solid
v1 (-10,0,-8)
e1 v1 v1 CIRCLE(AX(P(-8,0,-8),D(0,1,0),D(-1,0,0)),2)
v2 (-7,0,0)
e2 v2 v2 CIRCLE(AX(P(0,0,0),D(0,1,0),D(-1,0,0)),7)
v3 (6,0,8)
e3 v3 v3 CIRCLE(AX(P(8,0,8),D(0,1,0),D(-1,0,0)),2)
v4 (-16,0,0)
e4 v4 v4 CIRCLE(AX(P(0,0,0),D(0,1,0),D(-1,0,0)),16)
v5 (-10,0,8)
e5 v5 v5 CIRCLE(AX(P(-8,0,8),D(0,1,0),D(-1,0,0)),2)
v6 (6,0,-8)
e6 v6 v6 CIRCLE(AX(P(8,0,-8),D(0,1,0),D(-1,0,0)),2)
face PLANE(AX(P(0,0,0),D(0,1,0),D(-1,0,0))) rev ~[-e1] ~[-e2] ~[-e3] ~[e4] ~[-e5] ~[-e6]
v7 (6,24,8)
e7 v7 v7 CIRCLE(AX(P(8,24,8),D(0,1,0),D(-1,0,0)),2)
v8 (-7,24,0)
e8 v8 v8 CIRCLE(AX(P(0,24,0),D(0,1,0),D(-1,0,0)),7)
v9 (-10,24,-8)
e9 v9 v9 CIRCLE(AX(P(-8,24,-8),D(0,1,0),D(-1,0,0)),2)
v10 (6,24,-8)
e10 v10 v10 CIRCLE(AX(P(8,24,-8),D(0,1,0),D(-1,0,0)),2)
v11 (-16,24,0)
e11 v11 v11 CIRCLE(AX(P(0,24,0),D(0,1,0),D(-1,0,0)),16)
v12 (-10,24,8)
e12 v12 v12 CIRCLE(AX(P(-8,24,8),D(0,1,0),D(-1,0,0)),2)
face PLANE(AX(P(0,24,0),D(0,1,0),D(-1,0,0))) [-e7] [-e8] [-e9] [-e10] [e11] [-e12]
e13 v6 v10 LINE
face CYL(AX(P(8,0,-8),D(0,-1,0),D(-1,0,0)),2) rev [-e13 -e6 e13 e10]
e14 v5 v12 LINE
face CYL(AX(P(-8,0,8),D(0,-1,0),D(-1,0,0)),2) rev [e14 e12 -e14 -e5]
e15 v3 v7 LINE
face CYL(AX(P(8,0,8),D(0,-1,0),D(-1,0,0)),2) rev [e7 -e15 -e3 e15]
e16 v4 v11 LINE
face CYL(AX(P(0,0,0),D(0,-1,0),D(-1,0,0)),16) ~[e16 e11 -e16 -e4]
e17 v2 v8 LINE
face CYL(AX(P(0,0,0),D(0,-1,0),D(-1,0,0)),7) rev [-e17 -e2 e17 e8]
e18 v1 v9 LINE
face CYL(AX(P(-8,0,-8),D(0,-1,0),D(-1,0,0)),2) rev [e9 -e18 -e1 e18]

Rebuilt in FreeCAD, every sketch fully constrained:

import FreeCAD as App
import Part
import Sketcher

doc = App.newDocument("Part")
body = doc.addObject("PartDesign::Body", "Body")

# Sketch on XZ plane
sketch1 = body.newObject("Sketcher::SketchObject", "Sketch")
sketch1.AttachmentSupport = (doc.getObject("XZ_Plane"), [""])
sketch1.MapMode = "FlatFace"
sketch1.addGeometry([
    Part.Circle(App.Vector(0, 0, 0), App.Vector(0, 0, 1), 16),  # 0
    Part.Circle(App.Vector(8, -8, 0), App.Vector(0, 0, 1), 2),  # 1
    Part.Circle(App.Vector(-8, -8, 0), App.Vector(0, 0, 1), 2),  # 2
    Part.Circle(App.Vector(8, 8, 0), App.Vector(0, 0, 1), 2),  # 3
    Part.Circle(App.Vector(0, 0, 0), App.Vector(0, 0, 1), 7),  # 4
    Part.Circle(App.Vector(-8, 8, 0), App.Vector(0, 0, 1), 2),  # 5
], False)
sketch1.addConstraint([
    Sketcher.Constraint("Coincident", 0, 3, -1, 1),
    Sketcher.Constraint("Coincident", 4, 3, -1, 1),
    Sketcher.Constraint("Equal", 1, 2),
    Sketcher.Constraint("Equal", 2, 3),
    Sketcher.Constraint("Equal", 3, 5),
    Sketcher.Constraint("Symmetric", 2, 3, 3, 3, -1, 1),
    Sketcher.Constraint("Symmetric", 1, 3, 5, 3, -1, 1),
    Sketcher.Constraint("Symmetric", 1, 3, 2, 3, -2),
    Sketcher.Constraint("Diameter", 0, 32.0),
    Sketcher.Constraint("Diameter", 1, 4.0),
    Sketcher.Constraint("Diameter", 4, 14.0),
    Sketcher.Constraint("DistanceX", -1, 1, 1, 3, 8.0),
    Sketcher.Constraint("DistanceY", 1, 3, -1, 1, 8.0),
])
pad1 = body.newObject("PartDesign::Pad", "Pad")
pad1.Profile = sketch1
pad1.Length = 24
pad1.Reversed = True

doc.recompute()
